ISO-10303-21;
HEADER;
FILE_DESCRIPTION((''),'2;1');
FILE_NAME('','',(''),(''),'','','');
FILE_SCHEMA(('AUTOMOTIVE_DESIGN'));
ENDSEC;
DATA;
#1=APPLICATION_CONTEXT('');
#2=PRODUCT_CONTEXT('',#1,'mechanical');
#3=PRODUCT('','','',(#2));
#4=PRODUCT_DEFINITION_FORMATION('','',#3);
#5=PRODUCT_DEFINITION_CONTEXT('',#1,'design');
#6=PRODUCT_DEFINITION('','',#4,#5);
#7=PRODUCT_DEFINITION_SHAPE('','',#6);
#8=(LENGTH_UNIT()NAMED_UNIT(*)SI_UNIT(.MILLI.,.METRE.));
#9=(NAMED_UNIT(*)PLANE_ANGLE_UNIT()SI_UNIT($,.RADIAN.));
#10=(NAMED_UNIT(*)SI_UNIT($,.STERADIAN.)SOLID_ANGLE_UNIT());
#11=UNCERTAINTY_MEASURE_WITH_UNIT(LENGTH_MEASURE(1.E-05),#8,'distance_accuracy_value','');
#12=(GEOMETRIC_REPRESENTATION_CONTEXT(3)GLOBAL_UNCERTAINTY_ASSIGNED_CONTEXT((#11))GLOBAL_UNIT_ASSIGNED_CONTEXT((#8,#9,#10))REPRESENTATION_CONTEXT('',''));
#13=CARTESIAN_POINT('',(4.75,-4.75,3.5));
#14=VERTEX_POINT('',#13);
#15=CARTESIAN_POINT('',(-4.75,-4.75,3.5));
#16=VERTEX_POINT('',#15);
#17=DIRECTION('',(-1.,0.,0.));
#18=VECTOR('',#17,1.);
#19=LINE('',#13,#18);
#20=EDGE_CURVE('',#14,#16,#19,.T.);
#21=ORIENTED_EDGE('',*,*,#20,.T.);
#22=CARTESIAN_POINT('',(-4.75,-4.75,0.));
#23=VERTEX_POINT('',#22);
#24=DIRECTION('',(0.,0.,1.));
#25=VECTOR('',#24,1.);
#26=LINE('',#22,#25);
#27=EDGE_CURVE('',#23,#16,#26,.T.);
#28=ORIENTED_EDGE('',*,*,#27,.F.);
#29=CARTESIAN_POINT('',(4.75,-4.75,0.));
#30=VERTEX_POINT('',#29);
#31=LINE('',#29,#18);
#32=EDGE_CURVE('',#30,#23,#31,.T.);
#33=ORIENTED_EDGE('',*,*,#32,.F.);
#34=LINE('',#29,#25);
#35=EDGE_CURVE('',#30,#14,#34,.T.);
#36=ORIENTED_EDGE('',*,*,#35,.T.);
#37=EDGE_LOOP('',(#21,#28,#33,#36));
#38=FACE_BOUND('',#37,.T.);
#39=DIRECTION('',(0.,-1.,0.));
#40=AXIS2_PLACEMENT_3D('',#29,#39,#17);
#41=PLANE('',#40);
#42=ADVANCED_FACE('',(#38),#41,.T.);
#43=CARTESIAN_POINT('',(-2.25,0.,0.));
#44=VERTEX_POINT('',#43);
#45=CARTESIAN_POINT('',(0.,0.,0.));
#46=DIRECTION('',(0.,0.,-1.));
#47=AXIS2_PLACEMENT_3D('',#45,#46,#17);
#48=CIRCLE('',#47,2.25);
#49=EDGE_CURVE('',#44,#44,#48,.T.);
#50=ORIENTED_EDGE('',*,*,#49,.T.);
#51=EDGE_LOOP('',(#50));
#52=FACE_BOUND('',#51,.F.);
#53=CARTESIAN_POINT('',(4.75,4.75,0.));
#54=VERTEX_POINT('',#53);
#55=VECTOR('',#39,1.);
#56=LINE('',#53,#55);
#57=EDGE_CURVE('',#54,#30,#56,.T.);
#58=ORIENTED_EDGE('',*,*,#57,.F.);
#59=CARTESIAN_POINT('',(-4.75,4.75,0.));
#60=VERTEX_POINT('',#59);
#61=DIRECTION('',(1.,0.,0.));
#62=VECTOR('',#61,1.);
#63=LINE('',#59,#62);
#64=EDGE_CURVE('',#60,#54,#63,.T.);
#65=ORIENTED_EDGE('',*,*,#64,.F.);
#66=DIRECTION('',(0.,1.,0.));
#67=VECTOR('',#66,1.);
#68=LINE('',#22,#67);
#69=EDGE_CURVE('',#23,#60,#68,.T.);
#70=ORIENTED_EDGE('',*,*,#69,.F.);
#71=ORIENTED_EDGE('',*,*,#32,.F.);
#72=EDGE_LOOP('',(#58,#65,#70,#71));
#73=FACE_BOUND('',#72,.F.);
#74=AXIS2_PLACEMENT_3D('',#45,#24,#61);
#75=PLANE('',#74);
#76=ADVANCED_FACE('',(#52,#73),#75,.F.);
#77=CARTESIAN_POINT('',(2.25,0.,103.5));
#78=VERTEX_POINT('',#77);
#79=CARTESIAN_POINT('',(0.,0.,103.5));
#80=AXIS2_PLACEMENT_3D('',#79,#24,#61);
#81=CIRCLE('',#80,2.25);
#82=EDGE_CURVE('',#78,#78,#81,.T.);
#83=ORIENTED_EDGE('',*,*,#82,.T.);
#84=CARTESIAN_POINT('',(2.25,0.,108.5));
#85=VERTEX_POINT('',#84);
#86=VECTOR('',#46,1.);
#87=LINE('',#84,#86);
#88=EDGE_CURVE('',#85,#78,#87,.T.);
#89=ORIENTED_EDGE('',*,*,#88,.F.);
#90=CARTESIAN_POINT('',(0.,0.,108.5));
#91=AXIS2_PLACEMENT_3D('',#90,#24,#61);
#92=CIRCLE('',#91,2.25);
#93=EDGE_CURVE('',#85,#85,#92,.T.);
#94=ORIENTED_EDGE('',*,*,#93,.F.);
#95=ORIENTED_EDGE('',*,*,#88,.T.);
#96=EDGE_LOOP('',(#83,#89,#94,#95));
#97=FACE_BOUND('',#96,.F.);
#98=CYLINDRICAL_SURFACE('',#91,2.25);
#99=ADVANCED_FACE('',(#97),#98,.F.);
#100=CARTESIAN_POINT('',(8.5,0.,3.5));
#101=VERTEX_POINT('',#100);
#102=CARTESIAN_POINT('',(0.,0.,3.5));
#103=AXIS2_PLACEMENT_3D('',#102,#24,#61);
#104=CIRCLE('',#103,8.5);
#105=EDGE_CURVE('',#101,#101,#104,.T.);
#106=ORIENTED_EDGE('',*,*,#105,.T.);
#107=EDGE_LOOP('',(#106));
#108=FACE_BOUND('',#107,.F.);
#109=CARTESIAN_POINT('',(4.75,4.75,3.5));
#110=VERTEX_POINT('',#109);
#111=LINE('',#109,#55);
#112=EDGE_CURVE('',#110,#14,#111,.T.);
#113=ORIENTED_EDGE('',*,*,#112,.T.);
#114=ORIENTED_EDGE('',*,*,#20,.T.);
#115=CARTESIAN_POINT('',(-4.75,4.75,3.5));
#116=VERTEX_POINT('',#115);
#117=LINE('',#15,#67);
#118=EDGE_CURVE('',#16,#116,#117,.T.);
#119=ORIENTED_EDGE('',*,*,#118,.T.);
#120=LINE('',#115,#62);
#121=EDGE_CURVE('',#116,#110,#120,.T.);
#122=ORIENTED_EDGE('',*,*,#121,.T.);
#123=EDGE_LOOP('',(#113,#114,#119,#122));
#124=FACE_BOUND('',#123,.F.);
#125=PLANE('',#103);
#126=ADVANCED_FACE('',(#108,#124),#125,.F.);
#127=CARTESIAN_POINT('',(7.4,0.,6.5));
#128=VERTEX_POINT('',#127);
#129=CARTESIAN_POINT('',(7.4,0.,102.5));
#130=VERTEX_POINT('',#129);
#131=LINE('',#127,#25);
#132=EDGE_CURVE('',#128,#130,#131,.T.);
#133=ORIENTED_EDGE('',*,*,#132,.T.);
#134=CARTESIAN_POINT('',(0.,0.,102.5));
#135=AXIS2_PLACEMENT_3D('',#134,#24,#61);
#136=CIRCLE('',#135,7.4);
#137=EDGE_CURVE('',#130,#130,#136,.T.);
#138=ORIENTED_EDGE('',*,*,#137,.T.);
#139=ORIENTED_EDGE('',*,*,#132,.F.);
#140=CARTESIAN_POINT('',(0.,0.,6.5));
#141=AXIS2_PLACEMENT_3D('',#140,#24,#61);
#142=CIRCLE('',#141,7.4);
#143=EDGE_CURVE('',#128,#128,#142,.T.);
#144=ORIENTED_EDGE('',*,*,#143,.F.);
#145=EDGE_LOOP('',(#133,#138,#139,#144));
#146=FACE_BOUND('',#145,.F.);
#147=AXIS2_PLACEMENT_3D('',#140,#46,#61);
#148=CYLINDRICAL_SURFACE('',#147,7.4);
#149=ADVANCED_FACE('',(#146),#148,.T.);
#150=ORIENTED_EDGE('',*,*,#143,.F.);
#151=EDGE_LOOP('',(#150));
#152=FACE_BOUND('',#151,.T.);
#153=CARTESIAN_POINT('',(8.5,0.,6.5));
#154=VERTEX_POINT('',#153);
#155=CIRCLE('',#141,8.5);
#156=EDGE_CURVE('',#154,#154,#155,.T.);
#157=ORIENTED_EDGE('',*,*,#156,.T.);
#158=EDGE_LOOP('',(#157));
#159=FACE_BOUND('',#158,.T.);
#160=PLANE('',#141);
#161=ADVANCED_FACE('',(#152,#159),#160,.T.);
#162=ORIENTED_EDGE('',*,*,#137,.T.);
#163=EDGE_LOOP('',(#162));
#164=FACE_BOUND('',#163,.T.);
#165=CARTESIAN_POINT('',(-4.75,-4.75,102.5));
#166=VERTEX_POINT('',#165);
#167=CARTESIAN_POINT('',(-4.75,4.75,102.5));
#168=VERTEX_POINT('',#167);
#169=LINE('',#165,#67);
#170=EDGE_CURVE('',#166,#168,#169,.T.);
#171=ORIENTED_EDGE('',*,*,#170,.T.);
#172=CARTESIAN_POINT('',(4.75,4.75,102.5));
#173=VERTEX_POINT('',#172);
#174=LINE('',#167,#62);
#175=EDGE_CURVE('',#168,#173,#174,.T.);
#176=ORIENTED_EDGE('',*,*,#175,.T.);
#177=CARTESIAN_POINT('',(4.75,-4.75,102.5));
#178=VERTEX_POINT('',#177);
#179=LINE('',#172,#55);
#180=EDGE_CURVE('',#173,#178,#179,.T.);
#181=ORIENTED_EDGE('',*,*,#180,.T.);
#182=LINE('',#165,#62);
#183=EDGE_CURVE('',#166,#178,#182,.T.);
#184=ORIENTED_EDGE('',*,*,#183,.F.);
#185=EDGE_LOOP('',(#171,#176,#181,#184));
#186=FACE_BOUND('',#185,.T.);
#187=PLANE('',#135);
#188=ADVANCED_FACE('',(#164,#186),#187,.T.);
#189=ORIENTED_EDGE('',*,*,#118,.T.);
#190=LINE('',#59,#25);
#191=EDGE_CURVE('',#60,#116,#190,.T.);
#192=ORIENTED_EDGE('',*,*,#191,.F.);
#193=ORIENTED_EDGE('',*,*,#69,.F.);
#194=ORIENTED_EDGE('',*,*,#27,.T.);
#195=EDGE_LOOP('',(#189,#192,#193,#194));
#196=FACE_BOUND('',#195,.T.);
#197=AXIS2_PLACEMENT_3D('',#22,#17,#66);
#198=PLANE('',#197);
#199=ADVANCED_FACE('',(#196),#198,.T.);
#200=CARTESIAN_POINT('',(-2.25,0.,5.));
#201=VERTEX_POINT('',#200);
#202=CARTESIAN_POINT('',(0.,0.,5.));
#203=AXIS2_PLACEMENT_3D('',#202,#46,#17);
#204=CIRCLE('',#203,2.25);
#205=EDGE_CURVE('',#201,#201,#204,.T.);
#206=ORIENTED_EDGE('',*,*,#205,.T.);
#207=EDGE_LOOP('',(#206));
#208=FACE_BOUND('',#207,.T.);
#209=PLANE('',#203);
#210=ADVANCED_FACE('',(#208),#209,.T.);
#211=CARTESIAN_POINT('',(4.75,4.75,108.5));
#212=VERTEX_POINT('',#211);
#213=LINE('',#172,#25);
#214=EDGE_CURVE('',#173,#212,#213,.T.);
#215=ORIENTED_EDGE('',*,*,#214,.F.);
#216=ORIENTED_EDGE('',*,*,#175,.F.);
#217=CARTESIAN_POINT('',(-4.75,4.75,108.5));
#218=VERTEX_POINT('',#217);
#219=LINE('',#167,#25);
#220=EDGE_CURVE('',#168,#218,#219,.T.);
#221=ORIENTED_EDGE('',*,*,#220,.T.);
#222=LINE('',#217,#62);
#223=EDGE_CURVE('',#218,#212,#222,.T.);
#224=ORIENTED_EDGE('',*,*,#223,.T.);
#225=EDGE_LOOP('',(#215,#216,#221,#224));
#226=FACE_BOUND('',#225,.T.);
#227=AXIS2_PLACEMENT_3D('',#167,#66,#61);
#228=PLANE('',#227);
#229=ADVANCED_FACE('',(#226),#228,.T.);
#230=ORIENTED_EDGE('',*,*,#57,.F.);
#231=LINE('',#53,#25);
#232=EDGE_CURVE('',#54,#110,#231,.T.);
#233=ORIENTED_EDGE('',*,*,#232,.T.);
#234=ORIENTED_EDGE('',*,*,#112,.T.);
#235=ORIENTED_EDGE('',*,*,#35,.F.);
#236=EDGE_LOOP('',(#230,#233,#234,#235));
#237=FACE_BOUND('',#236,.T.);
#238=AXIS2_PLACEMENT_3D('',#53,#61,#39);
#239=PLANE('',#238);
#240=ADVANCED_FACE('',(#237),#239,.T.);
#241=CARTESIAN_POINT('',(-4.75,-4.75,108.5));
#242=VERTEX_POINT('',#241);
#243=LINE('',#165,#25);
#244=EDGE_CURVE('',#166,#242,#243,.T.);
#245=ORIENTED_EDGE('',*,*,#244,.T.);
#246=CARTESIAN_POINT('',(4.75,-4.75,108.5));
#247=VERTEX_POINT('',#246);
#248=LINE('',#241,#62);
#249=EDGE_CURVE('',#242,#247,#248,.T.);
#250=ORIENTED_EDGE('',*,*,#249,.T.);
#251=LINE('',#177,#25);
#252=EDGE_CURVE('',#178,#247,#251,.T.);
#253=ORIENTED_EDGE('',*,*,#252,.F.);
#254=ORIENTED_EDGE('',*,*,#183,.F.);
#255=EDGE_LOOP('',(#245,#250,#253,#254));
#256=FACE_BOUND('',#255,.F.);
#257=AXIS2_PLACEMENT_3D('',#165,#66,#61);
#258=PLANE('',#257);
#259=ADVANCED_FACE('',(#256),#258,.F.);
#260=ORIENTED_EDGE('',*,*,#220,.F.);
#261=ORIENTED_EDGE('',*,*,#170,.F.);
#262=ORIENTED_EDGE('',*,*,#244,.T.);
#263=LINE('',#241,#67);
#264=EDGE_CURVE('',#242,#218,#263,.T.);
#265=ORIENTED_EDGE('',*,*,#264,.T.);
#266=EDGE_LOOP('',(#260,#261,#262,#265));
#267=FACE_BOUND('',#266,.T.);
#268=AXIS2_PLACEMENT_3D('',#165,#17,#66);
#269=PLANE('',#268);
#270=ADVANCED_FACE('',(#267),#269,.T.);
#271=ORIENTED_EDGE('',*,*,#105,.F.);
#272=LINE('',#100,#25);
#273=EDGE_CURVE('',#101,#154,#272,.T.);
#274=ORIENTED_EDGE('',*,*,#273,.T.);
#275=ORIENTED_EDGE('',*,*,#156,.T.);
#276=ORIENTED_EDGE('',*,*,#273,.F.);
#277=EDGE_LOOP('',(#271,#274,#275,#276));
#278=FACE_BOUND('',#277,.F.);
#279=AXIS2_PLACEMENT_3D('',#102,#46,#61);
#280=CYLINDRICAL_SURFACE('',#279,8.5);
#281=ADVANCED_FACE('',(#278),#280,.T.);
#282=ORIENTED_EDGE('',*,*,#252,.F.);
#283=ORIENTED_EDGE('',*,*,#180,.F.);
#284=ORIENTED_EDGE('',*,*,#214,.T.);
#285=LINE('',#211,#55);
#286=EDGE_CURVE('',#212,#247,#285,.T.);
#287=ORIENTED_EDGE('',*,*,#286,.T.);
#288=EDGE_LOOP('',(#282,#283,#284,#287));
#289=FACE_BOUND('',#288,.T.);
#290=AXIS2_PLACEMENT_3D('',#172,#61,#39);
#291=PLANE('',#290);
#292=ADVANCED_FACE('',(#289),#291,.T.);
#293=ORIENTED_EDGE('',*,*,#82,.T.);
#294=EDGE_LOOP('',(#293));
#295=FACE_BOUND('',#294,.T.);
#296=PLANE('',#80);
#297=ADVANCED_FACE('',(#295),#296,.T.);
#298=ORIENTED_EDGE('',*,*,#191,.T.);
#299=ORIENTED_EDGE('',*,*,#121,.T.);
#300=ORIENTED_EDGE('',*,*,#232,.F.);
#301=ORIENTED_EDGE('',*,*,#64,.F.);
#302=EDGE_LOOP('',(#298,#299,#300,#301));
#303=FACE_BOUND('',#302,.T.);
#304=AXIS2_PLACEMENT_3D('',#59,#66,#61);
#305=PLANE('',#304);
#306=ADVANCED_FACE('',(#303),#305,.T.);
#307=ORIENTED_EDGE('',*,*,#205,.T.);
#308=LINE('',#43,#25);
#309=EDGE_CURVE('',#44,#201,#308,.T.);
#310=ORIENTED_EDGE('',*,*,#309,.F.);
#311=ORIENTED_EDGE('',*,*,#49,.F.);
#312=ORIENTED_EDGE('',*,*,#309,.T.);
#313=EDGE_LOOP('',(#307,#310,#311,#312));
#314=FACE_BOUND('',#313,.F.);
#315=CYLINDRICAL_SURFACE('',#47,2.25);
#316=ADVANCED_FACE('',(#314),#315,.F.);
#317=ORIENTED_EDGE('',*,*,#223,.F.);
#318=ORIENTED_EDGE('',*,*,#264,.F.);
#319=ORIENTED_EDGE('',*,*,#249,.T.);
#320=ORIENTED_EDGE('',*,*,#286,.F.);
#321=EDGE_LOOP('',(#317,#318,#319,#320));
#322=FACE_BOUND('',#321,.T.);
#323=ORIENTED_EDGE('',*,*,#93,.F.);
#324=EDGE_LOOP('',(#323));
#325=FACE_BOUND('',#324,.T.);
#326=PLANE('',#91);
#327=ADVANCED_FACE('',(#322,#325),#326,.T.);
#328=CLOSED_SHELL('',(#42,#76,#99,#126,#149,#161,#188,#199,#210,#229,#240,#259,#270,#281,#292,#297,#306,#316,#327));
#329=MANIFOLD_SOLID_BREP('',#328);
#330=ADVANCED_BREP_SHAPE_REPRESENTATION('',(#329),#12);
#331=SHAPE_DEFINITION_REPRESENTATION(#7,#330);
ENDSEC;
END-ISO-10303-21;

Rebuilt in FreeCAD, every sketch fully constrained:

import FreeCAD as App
import Part
import Sketcher

V = App.Vector


def add_polygon(sketch, points):
    """Adds a closed chain of lines whose ends are joined by coincident constraints."""
    first, n = sketch.GeometryCount, len(points)
    for a, b in zip(points, points[1:] + points[:1]):
        sketch.addGeometry(Part.LineSegment(App.Vector(*a, 0), App.Vector(*b, 0)), False)
    for i in range(n):
        sketch.addConstraint(Sketcher.Constraint("Coincident", first + i, 2, first + (i + 1) % n, 1))

doc = App.newDocument("Part")
body = doc.addObject("PartDesign::Body", "Body")

# Sketch on XY plane
sketch1 = body.newObject("Sketcher::SketchObject", "Sketch")
sketch1.AttachmentSupport = (doc.getObject("XY_Plane"), [""])
sketch1.MapMode = "FlatFace"
add_polygon(sketch1, [(5, 5), (-5, 5), (-5, -5), (5, -5)])  # lines 0-3
sketch1.addConstraint([
    Sketcher.Constraint("Horizontal", 0),
    Sketcher.Constraint("Vertical", 1),
    Sketcher.Constraint("Horizontal", 2),
    Sketcher.Constraint("Vertical", 3),
    Sketcher.Constraint("Symmetric", 0, 2, 2, 2, -1, 1),
    Sketcher.Constraint("Equal", 2, 1),
    Sketcher.Constraint("DistanceX", 0, 2, 0, 1, 9.5),
])
pad1 = body.newObject("PartDesign::Pad", "Pad")
pad1.Profile = sketch1
pad1.Length = 3.5

# Sketch on XY plane
sketch2 = body.newObject("Sketcher::SketchObject", "Sketch001")
sketch2.AttachmentSupport = (doc.getObject("XY_Plane"), [""])
sketch2.MapMode = "FlatFace"
sketch2.AttachmentOffset = App.Placement(V(0, 0, 3.5), App.Rotation())
sketch2.addGeometry(Part.Circle(V(0, 0, 0), V(0, 0, 1), 8), False)
sketch2.addConstraint([
    Sketcher.Constraint("Coincident", 0, 3, -1, 1),
    Sketcher.Constraint("Diameter", 0, 17.0),
])
pad2 = body.newObject("PartDesign::Pad", "Pad001")
pad2.Profile = sketch2
pad2.Length = 3

# Sketch on XY plane
sketch3 = body.newObject("Sketcher::SketchObject", "Sketch002")
sketch3.AttachmentSupport = (doc.getObject("XY_Plane"), [""])
sketch3.MapMode = "FlatFace"
sketch3.AttachmentOffset = App.Placement(V(0, 0, 6.5), App.Rotation())
sketch3.addGeometry(Part.Circle(V(0, 0, 0), V(0, 0, 1), 7), False)
sketch3.addConstraint([
    Sketcher.Constraint("Coincident", 0, 3, -1, 1),
    Sketcher.Constraint("Diameter", 0, 14.8),
])
pad3 = body.newObject("PartDesign::Pad", "Pad002")
pad3.Profile = sketch3
pad3.Length = 96

# Sketch on XY plane
sketch4 = body.newObject("Sketcher::SketchObject", "Sketch003")
sketch4.AttachmentSupport = (doc.getObject("XY_Plane"), [""])
sketch4.MapMode = "FlatFace"
sketch4.AttachmentOffset = App.Placement(V(0, 0, 102.5), App.Rotation())
add_polygon(sketch4, [(-5, 5), (-5, -5), (5, -5), (5, 5)])  # lines 0-3
sketch4.addConstraint([
    Sketcher.Constraint("Vertical", 0),
    Sketcher.Constraint("Horizontal", 1),
    Sketcher.Constraint("Vertical", 2),
    Sketcher.Constraint("Horizontal", 3),
    Sketcher.Constraint("Symmetric", 0, 2, 2, 2, -1, 1),
    Sketcher.Constraint("Equal", 3, 0),
    Sketcher.Constraint("DistanceX", 1, 1, 1, 2, 9.5),
])
pad4 = body.newObject("PartDesign::Pad", "Pad003")
pad4.Profile = sketch4
pad4.Length = 6

# Sketch on XY plane
sketch5 = body.newObject("Sketcher::SketchObject", "Sketch004")
sketch5.AttachmentSupport = (doc.getObject("XY_Plane"), [""])
sketch5.MapMode = "FlatFace"
sketch5.AttachmentOffset = App.Placement(V(0, 0, 108.5), App.Rotation())
sketch5.addGeometry(Part.Circle(V(0, 0, 0), V(0, 0, 1), 2.2), False)
sketch5.addConstraint([
    Sketcher.Constraint("Coincident", 0, 3, -1, 1),
    Sketcher.Constraint("Diameter", 0, 4.5),
])
pocket1 = body.newObject("PartDesign::Pocket", "Pocket")
pocket1.Profile = sketch5
pocket1.Length = 5

# Sketch on XY plane
sketch6 = body.newObject("Sketcher::SketchObject", "Sketch005")
sketch6.AttachmentSupport = (doc.getObject("XY_Plane"), [""])
sketch6.MapMode = "FlatFace"
sketch6.addGeometry(Part.Circle(V(0, 0, 0), V(0, 0, 1), 2.2), False)
sketch6.addConstraint([
    Sketcher.Constraint("Coincident", 0, 3, -1, 1),
    Sketcher.Constraint("Diameter", 0, 4.5),
])
pocket2 = body.newObject("PartDesign::Pocket", "Pocket001")
pocket2.Profile = sketch6
pocket2.Length = 5
pocket2.Reversed = True

doc.recompute()
